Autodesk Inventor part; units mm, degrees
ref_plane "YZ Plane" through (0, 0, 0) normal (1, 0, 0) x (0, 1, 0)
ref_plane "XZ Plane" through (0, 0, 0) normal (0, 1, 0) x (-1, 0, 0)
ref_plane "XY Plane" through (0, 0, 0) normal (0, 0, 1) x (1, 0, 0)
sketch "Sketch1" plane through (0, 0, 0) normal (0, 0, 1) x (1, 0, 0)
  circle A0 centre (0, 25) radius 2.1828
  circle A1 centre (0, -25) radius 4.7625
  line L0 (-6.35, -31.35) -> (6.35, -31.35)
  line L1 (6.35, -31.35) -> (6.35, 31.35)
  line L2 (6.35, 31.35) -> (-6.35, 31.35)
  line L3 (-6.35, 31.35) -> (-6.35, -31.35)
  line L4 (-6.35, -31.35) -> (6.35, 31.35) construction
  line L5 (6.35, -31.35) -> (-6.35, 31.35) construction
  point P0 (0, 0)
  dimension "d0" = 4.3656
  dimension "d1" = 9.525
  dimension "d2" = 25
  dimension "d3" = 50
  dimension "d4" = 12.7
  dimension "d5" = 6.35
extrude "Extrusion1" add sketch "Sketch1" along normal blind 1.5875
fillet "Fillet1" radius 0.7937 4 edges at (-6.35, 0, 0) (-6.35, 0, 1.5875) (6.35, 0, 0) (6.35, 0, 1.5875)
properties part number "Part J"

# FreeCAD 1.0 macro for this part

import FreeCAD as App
import Part
import Sketcher
from FreeCAD import Vector
Q = App.Units.Quantity


def edges_at(feature, points):
    """Names of the edges that pass closest to the given points."""
    edges = feature.Shape.Edges
    near = lambda p: min(range(len(edges)), key=lambda i: edges[i].distToShape(Part.Vertex(*p))[0])
    return sorted({f"Edge{near(p) + 1}" for p in points})

doc = App.newDocument("Part")
body = doc.addObject("PartDesign::Body", "Body")

sketch1 = doc.addObject("Sketcher::SketchObject", "Sketch")
body.addObject(sketch1)
sketch1.AttachmentSupport = (doc.XY_Plane, [""])
sketch1.MapMode = "FlatFace"
sketch1.addGeometry(Part.LineSegment(Vector(-6.3, 31.4, 0), Vector(-6.3, -31.4, 0)), False)
sketch1.addGeometry(Part.LineSegment(Vector(-6.3, -31.4, 0), Vector(6.3, -31.4, 0)), False)
sketch1.addGeometry(Part.LineSegment(Vector(6.3, -31.4, 0), Vector(6.3, 31.4, 0)), False)
sketch1.addGeometry(Part.LineSegment(Vector(6.3, 31.4, 0), Vector(-6.3, 31.4, 0)), False)
sketch1.addGeometry(Part.Circle(Vector(0, -25, 0), Vector(0, 0, 1), 4.8), False)
sketch1.addGeometry(Part.Circle(Vector(0, 25, 0), Vector(0, 0, 1), 2.2), False)
sketch1.addConstraint(Sketcher.Constraint("Coincident", 0, 2, 1, 1))
sketch1.addConstraint(Sketcher.Constraint("Coincident", 1, 2, 2, 1))
sketch1.addConstraint(Sketcher.Constraint("Coincident", 2, 2, 3, 1))
sketch1.addConstraint(Sketcher.Constraint("Coincident", 3, 2, 0, 1))
sketch1.addConstraint(Sketcher.Constraint("Vertical", 0))
sketch1.addConstraint(Sketcher.Constraint("Horizontal", 1))
sketch1.addConstraint(Sketcher.Constraint("Vertical", 2))
sketch1.addConstraint(Sketcher.Constraint("Horizontal", 3))
sketch1.addConstraint(Sketcher.Constraint("Symmetric", 4, 3, 5, 3, -1, 1))
sketch1.addConstraint(Sketcher.Constraint("Symmetric", 0, 2, 2, 2, -1, 1))
sketch1.addConstraint(Sketcher.Constraint("PointOnObject", 4, 3, -2))
sketch1.addConstraint(Sketcher.Constraint("Diameter", 4, Q("0.375 in")))
sketch1.addConstraint(Sketcher.Constraint("Diameter", 5, Q("0.171874 in")))
sketch1.addConstraint(Sketcher.Constraint("DistanceX", 1, 1, 1, 2, Q("0.5 in")))
sketch1.addConstraint(Sketcher.Constraint("DistanceY", 0, 2, 4, 3, Q("0.25 in")))
sketch1.addConstraint(Sketcher.Constraint("DistanceY", 4, 3, 5, 3, Q("1.9685 in")))
pad1 = doc.addObject("PartDesign::Pad", "Pad")
body.addObject(pad1)
pad1.Profile = sketch1
pad1.Length = Q("0.0625 in")
doc.recompute()

fillet = doc.addObject("PartDesign::Fillet", "Fillet")
body.addObject(fillet)
fillet.Base = (pad1, edges_at(pad1, [
    (-6.35, 0, 0),
    (-6.35, 0, 1.587),
    (6.35, 0, 0),
    (6.35, 0, 1.587),
]))
fillet.Radius = Q("0.031248 in")

doc.recompute()
